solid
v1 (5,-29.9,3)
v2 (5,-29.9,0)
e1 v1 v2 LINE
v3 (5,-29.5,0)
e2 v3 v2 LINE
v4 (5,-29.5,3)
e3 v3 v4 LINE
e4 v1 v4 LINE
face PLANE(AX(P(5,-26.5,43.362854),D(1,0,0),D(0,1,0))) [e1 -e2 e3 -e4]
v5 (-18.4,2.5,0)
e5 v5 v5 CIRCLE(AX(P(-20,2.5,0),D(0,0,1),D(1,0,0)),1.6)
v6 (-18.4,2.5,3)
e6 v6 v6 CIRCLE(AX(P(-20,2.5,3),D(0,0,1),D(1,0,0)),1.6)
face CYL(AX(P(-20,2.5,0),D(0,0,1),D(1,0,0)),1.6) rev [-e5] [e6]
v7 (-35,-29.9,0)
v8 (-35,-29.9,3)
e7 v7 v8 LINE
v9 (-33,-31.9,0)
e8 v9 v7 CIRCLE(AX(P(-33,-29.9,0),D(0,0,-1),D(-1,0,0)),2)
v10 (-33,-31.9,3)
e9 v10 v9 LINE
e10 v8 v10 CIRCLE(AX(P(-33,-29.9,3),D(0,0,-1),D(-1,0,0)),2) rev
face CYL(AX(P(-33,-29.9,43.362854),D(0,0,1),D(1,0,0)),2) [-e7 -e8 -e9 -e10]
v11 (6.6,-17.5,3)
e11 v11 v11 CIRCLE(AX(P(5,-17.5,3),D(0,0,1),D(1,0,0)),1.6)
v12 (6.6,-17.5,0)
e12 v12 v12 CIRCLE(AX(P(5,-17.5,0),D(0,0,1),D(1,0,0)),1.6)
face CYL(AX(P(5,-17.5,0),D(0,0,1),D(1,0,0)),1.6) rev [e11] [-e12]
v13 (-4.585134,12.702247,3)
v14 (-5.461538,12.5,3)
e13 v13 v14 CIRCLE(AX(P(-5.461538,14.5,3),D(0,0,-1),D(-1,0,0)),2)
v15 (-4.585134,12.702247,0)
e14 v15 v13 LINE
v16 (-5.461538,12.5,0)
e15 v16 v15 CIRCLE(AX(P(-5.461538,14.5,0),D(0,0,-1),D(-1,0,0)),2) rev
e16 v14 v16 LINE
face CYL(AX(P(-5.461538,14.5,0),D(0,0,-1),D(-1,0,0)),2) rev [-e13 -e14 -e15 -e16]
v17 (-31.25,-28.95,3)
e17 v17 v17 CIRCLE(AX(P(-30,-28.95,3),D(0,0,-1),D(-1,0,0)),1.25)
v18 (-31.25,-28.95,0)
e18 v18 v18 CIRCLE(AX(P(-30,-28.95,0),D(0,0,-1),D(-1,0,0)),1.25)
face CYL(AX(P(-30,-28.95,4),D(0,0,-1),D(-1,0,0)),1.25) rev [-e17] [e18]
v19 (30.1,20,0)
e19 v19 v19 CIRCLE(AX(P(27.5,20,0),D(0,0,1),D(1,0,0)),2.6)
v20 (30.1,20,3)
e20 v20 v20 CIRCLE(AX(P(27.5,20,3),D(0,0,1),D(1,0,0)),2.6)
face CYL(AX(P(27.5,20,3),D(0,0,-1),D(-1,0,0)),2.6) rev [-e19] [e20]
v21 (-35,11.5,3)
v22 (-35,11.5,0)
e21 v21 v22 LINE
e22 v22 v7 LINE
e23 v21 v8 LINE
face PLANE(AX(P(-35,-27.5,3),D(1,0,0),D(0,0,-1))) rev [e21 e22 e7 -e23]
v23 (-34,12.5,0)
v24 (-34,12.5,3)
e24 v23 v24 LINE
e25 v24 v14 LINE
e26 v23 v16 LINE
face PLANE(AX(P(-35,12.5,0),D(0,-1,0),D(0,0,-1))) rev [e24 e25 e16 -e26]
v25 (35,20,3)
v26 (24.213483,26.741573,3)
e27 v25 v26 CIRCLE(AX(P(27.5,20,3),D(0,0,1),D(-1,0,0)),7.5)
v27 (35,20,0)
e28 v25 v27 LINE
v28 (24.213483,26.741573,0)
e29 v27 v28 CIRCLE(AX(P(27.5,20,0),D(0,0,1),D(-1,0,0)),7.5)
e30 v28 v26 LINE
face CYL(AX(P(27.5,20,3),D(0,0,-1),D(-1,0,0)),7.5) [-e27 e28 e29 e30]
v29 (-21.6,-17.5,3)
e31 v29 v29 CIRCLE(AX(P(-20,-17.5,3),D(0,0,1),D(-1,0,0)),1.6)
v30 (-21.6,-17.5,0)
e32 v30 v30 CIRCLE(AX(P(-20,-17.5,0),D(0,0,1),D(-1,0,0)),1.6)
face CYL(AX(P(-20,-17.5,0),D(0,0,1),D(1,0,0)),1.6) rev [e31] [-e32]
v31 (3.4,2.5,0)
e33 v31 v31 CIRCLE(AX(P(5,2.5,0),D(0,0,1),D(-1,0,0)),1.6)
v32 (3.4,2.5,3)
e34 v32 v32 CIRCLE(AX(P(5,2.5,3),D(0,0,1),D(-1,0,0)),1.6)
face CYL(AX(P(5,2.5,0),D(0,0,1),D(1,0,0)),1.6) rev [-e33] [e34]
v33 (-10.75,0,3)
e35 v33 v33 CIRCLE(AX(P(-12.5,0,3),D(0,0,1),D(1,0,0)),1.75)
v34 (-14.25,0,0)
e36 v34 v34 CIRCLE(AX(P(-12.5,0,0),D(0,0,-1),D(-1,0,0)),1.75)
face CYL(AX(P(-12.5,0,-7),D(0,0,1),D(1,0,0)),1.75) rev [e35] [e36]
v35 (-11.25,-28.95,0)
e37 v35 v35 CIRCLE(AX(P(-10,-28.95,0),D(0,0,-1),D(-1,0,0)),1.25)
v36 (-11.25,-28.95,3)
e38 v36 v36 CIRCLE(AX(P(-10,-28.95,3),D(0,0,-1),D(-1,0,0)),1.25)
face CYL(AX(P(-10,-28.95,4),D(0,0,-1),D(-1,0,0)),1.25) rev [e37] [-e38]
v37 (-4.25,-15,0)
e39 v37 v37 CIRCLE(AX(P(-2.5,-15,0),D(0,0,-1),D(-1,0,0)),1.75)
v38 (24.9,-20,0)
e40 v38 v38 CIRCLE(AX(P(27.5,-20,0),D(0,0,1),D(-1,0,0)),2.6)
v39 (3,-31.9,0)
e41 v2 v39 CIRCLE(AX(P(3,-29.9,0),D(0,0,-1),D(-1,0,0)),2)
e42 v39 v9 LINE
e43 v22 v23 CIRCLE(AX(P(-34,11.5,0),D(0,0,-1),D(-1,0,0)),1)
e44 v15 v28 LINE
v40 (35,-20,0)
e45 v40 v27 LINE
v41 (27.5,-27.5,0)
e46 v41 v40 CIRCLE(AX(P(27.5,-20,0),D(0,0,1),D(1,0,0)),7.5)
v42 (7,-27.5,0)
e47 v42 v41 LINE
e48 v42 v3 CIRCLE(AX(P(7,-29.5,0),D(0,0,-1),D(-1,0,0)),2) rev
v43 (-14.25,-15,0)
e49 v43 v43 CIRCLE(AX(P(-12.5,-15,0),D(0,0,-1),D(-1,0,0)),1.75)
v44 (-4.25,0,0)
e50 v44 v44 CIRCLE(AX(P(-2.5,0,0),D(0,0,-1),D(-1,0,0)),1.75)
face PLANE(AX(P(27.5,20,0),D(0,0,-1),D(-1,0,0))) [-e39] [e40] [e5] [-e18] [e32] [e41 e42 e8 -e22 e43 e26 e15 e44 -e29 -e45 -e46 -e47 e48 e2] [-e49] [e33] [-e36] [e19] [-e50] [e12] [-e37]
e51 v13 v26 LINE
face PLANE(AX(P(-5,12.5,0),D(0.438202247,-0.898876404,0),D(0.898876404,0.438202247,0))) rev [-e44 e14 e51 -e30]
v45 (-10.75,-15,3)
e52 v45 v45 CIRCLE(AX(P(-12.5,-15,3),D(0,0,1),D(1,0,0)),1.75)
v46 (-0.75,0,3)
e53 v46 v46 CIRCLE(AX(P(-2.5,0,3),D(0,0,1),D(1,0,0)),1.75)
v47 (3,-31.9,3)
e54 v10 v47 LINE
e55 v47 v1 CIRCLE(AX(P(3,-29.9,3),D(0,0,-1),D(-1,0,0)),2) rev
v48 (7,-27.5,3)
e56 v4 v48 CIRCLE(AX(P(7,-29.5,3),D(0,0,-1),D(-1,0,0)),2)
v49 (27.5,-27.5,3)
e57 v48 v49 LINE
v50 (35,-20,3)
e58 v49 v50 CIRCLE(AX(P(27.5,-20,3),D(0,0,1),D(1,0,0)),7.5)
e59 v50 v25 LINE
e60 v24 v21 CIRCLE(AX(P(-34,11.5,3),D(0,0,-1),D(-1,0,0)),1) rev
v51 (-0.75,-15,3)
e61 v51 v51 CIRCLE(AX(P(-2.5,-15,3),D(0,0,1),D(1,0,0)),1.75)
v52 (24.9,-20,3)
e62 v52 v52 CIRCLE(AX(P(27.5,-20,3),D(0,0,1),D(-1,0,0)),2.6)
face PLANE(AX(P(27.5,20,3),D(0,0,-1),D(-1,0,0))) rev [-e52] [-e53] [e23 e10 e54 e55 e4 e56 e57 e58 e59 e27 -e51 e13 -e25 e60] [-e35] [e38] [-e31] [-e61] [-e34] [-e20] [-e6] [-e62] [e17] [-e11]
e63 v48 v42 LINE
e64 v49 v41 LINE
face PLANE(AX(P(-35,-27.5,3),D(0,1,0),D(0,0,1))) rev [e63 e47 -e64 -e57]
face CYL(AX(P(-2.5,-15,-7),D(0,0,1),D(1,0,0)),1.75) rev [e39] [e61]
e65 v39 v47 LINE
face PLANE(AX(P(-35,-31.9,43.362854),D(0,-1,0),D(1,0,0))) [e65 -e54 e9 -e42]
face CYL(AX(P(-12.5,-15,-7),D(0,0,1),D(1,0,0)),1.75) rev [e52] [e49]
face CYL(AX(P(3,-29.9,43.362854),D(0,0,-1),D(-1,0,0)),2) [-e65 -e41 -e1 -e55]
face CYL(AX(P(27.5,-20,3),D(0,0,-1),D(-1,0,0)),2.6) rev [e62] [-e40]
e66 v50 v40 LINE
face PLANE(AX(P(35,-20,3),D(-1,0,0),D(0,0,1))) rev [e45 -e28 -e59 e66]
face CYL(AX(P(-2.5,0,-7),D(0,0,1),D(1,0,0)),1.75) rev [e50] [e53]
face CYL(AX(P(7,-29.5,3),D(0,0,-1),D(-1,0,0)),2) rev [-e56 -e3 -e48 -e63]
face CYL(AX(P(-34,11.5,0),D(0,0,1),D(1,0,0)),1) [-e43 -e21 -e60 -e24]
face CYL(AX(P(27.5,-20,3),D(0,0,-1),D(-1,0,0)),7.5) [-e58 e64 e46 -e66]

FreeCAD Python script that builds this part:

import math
import FreeCAD as App
import Part
import Sketcher


def edges_at(feature, points):
    """Names of the edges that pass closest to the given points."""
    edges = feature.Shape.Edges
    near = lambda p: min(range(len(edges)), key=lambda i: edges[i].distToShape(Part.Vertex(*p))[0])
    return sorted({f"Edge{near(p) + 1}" for p in points})


def add_polygon(sketch, points):
    """Adds a closed chain of lines whose ends are joined by coincident constraints."""
    first, n = sketch.GeometryCount, len(points)
    for a, b in zip(points, points[1:] + points[:1]):
        sketch.addGeometry(Part.LineSegment(App.Vector(*a, 0), App.Vector(*b, 0)), False)
    for i in range(n):
        sketch.addConstraint(Sketcher.Constraint("Coincident", first + i, 2, first + (i + 1) % n, 1))

doc = App.newDocument("Part")
body = doc.addObject("PartDesign::Body", "Body")

sketch1 = body.newObject("Sketcher::SketchObject", "Sketch")
sketch1.AttachmentSupport = (doc.getObject("XY_Plane"), [""])
sketch1.MapMode = "FlatFace"
sketch1.addGeometry([
    Part.LineSegment(App.Vector(-35, -27.5, 0), App.Vector(27.5, -27.5, 0)),
    Part.ArcOfCircle(Part.Circle(App.Vector(27.5, -20, 0), App.Vector(0, 0, 1), 7.5), math.radians(-90), math.radians(0)),
    Part.LineSegment(App.Vector(35, -20, 0), App.Vector(35, 20, 0)),
    Part.ArcOfCircle(Part.Circle(App.Vector(27.5, 20, 0), App.Vector(0, 0, 1), 7.5), math.radians(0), math.radians(90)),
    Part.LineSegment(App.Vector(27.5, 27.5, 0), App.Vector(-35, 27.5, 0)),
    Part.LineSegment(App.Vector(-35, 27.5, 0), App.Vector(-35, -27.5, 0)),
    Part.Circle(App.Vector(27.5, -20, 0), App.Vector(0, 0, 1), 2.6),
    Part.Circle(App.Vector(27.5, 20, 0), App.Vector(0, 0, 1), 2.6),
], False)
sketch1.addConstraint([
    Sketcher.Constraint("Tangent", 0, 2, 1, 1),
    Sketcher.Constraint("Tangent", 1, 2, 2, 1),
    Sketcher.Constraint("Tangent", 2, 2, 3, 1),
    Sketcher.Constraint("Tangent", 3, 2, 4, 1),
    Sketcher.Constraint("Coincident", 4, 2, 5, 1),
    Sketcher.Constraint("Coincident", 5, 2, 0, 1),
    Sketcher.Constraint("Horizontal", 0),
    Sketcher.Constraint("Vertical", 2),
    Sketcher.Constraint("Horizontal", 4),
    Sketcher.Constraint("Vertical", 5),
    Sketcher.Constraint("Coincident", 6, 3, 1, 3),
    Sketcher.Constraint("Coincident", 7, 3, 3, 3),
    Sketcher.Constraint("Equal", 1, 3),
    Sketcher.Constraint("Equal", 6, 7),
    Sketcher.Constraint("Diameter", 6, 5.2),
    Sketcher.Constraint("Radius", 1, 7.5),
    Sketcher.Constraint("DistanceY", 2, 1, 2, 2, 40.0),
    Sketcher.Constraint("DistanceX", 0, 1, 0, 2, 62.5),
    Sketcher.Constraint("DistanceY", 1, 3, -1, 1, 20.0),
    Sketcher.Constraint("DistanceX", -1, 1, 1, 2, 35.0),
])
pad1 = body.newObject("PartDesign::Pad", "Pad")
pad1.Profile = sketch1
pad1.Length = 3

sketch2 = body.newObject("Sketcher::SketchObject", "Sketch001")
sketch2.AttachmentSupport = (doc.getObject("XY_Plane"), [""])
sketch2.MapMode = "FlatFace"
sketch2.addGeometry([
    Part.LineSegment(App.Vector(-35, 12.5, 0), App.Vector(-5, 12.5, 0)),
    Part.LineSegment(App.Vector(-5, 12.5, 0), App.Vector(24.2, 26.7, 0)),
    Part.ArcOfCircle(Part.Circle(App.Vector(27.5, 20, 0), App.Vector(0, 0, 1), 7.5), math.radians(90), math.radians(116)),
    Part.LineSegment(App.Vector(27.5, 27.5, 0), App.Vector(27.5, 37.5, 0)),
    Part.LineSegment(App.Vector(27.5, 37.5, 0), App.Vector(-35, 37.5, 0)),
    Part.LineSegment(App.Vector(-35, 37.5, 0), App.Vector(-35, 12.5, 0)),
], False)
sketch2.addConstraint([
    Sketcher.Constraint("Coincident", 0, 2, 1, 1),
    Sketcher.Constraint("Tangent", 1, 2, 2, 2),
    Sketcher.Constraint("Coincident", 2, 1, 3, 1),
    Sketcher.Constraint("Coincident", 3, 2, 4, 1),
    Sketcher.Constraint("Coincident", 4, 2, 5, 1),
    Sketcher.Constraint("Coincident", 5, 2, 0, 1),
    Sketcher.Constraint("Horizontal", 0),
    Sketcher.Constraint("Vertical", 3),
    Sketcher.Constraint("Horizontal", 4),
    Sketcher.Constraint("Vertical", 5),
    Sketcher.Constraint("Radius", 2, 7.5),
    Sketcher.Constraint("DistanceX", 0, 1, 0, 2, 30.0),
    Sketcher.Constraint("DistanceY", 3, 1, 3, 2, 10.0),
    Sketcher.Constraint("DistanceY", 5, 2, 5, 1, 25.0),
    Sketcher.Constraint("DistanceX", 4, 2, 4, 1, 62.5),
    Sketcher.Constraint("DistanceY", -1, 1, 2, 3, 20.0),
    Sketcher.Constraint("DistanceX", 0, 2, -1, 1, 5.0),
    Sketcher.Constraint("Distance", 1, 32.5),
])
pocket1 = body.newObject("PartDesign::Pocket", "Pocket")
pocket1.Profile = sketch2
pocket1.Length = 3
pocket1.Reversed = True

sketch3 = body.newObject("Sketcher::SketchObject", "Sketch002")
sketch3.AttachmentSupport = (doc.getObject("XY_Plane"), [""])
sketch3.MapMode = "FlatFace"
sketch3.AttachmentOffset = App.Placement(App.Vector(0, 0, 3), App.Rotation())
sketch3.addGeometry([
    Part.Circle(App.Vector(-20, 2.5, 0), App.Vector(0, 0, 1), 1.6),
    Part.Circle(App.Vector(5, 2.5, 0), App.Vector(0, 0, 1), 1.6),
    Part.Circle(App.Vector(5, -17.5, 0), App.Vector(0, 0, 1), 1.6),
    Part.Circle(App.Vector(-20, -17.5, 0), App.Vector(0, 0, 1), 1.6),
], False)
sketch3.addConstraint([
    Sketcher.Constraint("Equal", 0, 1),
    Sketcher.Constraint("Equal", 1, 2),
    Sketcher.Constraint("Equal", 2, 3),
    Sketcher.Constraint("Horizontal", 0, 3, 1, 3),
    Sketcher.Constraint("Horizontal", 2, 3, 3, 3),
    Sketcher.Constraint("Vertical", 1, 3, 2, 3),
    Sketcher.Constraint("Vertical", 0, 3, 3, 3),
    Sketcher.Constraint("Diameter", 0, 3.2),
    Sketcher.Constraint("DistanceX", 0, 3, -1, 1, 20.0),
    Sketcher.Constraint("DistanceX", -1, 1, 1, 3, 5.0),
    Sketcher.Constraint("DistanceY", 2, 3, 1, 3, 20.0),
    Sketcher.Constraint("DistanceY", -1, 1, 0, 3, 2.5),
])
pocket2 = body.newObject("PartDesign::Pocket", "Pocket001")
pocket2.Profile = sketch3
pocket2.Length = 3
doc.recompute()

fillet = body.newObject("PartDesign::Fillet", "Fillet")
fillet.Base = (pocket2, edges_at(pocket2, [(-35, -27.5, 1.5), (-35, 12.5, 1.5)]))
fillet.Radius = 1

sketch4 = body.newObject("Sketcher::SketchObject", "Sketch003")
sketch4.AttachmentSupport = (doc.getObject("XY_Plane"), [""])
sketch4.MapMode = "FlatFace"
sketch4.AttachmentOffset = App.Placement(App.Vector(0, 0, 3), App.Rotation())
sketch4.addGeometry([
    Part.Circle(App.Vector(-2.5, 0, 0), App.Vector(0, 0, 1), 1.8),
    Part.Circle(App.Vector(-12.5, 0, 0), App.Vector(0, 0, 1), 1.8),
    Part.Circle(App.Vector(-12.5, -15, 0), App.Vector(0, 0, 1), 1.8),
    Part.Circle(App.Vector(-2.5, -15, 0), App.Vector(0, 0, 1), 1.8),
], False)
sketch4.addConstraint([
    Sketcher.Constraint("Equal", 0, 1),
    Sketcher.Constraint("Equal", 1, 2),
    Sketcher.Constraint("Equal", 2, 3),
    Sketcher.Constraint("PointOnObject", 0, 3, -1),
    Sketcher.Constraint("PointOnObject", 1, 3, -1),
    Sketcher.Constraint("Horizontal", 2, 3, 3, 3),
    Sketcher.Constraint("Vertical", 1, 3, 2, 3),
    Sketcher.Constraint("Vertical", 0, 3, 3, 3),
    Sketcher.Constraint("Diameter", 0, 3.5),
    Sketcher.Constraint("DistanceY", 2, 3, -1, 1, 15.0),
    Sketcher.Constraint("DistanceX", 1, 3, 0, 3, 10.0),
    Sketcher.Constraint("DistanceX", 0, 3, -1, 1, 2.5),
])
pocket3 = body.newObject("PartDesign::Pocket", "Pocket002")
pocket3.Profile = sketch4
pocket3.Length = 10

sketch5 = body.newObject("Sketcher::SketchObject", "Sketch004")
sketch5.AttachmentSupport = (doc.getObject("XY_Plane"), [""])
sketch5.MapMode = "FlatFace"
add_polygon(sketch5, [(5, -26), (5, -32), (-35, -32), (-35, -26)])
sketch5.addConstraint([
    Sketcher.Constraint("Vertical", 0),
    Sketcher.Constraint("Horizontal", 1),
    Sketcher.Constraint("Vertical", 2),
    Sketcher.Constraint("Horizontal", 3),
    Sketcher.Constraint("DistanceX", 1, 2, 1, 1, 40.0),
    Sketcher.Constraint("DistanceY", 0, 2, 0, 1, 5.4),
    Sketcher.Constraint("DistanceX", -1, 1, 0, 2, 5.0),
    Sketcher.Constraint("DistanceY", 0, 2, -1, 1, 31.9),
])
pad2 = body.newObject("PartDesign::Pad", "Pad001")
pad2.Profile = sketch5
pad2.Length = 3

sketch6 = body.newObject("Sketcher::SketchObject", "Sketch005")
sketch6.AttachmentSupport = (doc.getObject("XY_Plane"), [""])
sketch6.MapMode = "FlatFace"
sketch6.addGeometry([
    Part.Circle(App.Vector(-30, -28.9, 0), App.Vector(0, 0, 1), 1.2),
    Part.Circle(App.Vector(-10, -28.9, 0), App.Vector(0, 0, 1), 1.2),
], False)
sketch6.addConstraint([
    Sketcher.Constraint("Equal", 0, 1),
    Sketcher.Constraint("Horizontal", 0, 3, 1, 3),
    Sketcher.Constraint("Diameter", 0, 2.5),
    Sketcher.Constraint("DistanceX", 0, 3, -1, 1, 30.0),
    Sketcher.Constraint("DistanceX", 1, 3, -1, 1, 10.0),
    Sketcher.Constraint("DistanceY", 0, 3, -1, 1, 28.95),
])
pocket4 = body.newObject("PartDesign::Pocket", "Pocket003")
pocket4.Profile = sketch6
pocket4.Length = 4
pocket4.Reversed = True
doc.recompute()

fillet2 = body.newObject("PartDesign::Fillet", "Fillet001")
fillet2.Base = (pocket4, edges_at(pocket4, [
    (5, -27.5, 1.5),
    (5, -31.9, 1.5),
    (-35, -31.9, 1.5),
    (-5, 12.5, 1.5),
]))
fillet2.Radius = 2

doc.recompute()
